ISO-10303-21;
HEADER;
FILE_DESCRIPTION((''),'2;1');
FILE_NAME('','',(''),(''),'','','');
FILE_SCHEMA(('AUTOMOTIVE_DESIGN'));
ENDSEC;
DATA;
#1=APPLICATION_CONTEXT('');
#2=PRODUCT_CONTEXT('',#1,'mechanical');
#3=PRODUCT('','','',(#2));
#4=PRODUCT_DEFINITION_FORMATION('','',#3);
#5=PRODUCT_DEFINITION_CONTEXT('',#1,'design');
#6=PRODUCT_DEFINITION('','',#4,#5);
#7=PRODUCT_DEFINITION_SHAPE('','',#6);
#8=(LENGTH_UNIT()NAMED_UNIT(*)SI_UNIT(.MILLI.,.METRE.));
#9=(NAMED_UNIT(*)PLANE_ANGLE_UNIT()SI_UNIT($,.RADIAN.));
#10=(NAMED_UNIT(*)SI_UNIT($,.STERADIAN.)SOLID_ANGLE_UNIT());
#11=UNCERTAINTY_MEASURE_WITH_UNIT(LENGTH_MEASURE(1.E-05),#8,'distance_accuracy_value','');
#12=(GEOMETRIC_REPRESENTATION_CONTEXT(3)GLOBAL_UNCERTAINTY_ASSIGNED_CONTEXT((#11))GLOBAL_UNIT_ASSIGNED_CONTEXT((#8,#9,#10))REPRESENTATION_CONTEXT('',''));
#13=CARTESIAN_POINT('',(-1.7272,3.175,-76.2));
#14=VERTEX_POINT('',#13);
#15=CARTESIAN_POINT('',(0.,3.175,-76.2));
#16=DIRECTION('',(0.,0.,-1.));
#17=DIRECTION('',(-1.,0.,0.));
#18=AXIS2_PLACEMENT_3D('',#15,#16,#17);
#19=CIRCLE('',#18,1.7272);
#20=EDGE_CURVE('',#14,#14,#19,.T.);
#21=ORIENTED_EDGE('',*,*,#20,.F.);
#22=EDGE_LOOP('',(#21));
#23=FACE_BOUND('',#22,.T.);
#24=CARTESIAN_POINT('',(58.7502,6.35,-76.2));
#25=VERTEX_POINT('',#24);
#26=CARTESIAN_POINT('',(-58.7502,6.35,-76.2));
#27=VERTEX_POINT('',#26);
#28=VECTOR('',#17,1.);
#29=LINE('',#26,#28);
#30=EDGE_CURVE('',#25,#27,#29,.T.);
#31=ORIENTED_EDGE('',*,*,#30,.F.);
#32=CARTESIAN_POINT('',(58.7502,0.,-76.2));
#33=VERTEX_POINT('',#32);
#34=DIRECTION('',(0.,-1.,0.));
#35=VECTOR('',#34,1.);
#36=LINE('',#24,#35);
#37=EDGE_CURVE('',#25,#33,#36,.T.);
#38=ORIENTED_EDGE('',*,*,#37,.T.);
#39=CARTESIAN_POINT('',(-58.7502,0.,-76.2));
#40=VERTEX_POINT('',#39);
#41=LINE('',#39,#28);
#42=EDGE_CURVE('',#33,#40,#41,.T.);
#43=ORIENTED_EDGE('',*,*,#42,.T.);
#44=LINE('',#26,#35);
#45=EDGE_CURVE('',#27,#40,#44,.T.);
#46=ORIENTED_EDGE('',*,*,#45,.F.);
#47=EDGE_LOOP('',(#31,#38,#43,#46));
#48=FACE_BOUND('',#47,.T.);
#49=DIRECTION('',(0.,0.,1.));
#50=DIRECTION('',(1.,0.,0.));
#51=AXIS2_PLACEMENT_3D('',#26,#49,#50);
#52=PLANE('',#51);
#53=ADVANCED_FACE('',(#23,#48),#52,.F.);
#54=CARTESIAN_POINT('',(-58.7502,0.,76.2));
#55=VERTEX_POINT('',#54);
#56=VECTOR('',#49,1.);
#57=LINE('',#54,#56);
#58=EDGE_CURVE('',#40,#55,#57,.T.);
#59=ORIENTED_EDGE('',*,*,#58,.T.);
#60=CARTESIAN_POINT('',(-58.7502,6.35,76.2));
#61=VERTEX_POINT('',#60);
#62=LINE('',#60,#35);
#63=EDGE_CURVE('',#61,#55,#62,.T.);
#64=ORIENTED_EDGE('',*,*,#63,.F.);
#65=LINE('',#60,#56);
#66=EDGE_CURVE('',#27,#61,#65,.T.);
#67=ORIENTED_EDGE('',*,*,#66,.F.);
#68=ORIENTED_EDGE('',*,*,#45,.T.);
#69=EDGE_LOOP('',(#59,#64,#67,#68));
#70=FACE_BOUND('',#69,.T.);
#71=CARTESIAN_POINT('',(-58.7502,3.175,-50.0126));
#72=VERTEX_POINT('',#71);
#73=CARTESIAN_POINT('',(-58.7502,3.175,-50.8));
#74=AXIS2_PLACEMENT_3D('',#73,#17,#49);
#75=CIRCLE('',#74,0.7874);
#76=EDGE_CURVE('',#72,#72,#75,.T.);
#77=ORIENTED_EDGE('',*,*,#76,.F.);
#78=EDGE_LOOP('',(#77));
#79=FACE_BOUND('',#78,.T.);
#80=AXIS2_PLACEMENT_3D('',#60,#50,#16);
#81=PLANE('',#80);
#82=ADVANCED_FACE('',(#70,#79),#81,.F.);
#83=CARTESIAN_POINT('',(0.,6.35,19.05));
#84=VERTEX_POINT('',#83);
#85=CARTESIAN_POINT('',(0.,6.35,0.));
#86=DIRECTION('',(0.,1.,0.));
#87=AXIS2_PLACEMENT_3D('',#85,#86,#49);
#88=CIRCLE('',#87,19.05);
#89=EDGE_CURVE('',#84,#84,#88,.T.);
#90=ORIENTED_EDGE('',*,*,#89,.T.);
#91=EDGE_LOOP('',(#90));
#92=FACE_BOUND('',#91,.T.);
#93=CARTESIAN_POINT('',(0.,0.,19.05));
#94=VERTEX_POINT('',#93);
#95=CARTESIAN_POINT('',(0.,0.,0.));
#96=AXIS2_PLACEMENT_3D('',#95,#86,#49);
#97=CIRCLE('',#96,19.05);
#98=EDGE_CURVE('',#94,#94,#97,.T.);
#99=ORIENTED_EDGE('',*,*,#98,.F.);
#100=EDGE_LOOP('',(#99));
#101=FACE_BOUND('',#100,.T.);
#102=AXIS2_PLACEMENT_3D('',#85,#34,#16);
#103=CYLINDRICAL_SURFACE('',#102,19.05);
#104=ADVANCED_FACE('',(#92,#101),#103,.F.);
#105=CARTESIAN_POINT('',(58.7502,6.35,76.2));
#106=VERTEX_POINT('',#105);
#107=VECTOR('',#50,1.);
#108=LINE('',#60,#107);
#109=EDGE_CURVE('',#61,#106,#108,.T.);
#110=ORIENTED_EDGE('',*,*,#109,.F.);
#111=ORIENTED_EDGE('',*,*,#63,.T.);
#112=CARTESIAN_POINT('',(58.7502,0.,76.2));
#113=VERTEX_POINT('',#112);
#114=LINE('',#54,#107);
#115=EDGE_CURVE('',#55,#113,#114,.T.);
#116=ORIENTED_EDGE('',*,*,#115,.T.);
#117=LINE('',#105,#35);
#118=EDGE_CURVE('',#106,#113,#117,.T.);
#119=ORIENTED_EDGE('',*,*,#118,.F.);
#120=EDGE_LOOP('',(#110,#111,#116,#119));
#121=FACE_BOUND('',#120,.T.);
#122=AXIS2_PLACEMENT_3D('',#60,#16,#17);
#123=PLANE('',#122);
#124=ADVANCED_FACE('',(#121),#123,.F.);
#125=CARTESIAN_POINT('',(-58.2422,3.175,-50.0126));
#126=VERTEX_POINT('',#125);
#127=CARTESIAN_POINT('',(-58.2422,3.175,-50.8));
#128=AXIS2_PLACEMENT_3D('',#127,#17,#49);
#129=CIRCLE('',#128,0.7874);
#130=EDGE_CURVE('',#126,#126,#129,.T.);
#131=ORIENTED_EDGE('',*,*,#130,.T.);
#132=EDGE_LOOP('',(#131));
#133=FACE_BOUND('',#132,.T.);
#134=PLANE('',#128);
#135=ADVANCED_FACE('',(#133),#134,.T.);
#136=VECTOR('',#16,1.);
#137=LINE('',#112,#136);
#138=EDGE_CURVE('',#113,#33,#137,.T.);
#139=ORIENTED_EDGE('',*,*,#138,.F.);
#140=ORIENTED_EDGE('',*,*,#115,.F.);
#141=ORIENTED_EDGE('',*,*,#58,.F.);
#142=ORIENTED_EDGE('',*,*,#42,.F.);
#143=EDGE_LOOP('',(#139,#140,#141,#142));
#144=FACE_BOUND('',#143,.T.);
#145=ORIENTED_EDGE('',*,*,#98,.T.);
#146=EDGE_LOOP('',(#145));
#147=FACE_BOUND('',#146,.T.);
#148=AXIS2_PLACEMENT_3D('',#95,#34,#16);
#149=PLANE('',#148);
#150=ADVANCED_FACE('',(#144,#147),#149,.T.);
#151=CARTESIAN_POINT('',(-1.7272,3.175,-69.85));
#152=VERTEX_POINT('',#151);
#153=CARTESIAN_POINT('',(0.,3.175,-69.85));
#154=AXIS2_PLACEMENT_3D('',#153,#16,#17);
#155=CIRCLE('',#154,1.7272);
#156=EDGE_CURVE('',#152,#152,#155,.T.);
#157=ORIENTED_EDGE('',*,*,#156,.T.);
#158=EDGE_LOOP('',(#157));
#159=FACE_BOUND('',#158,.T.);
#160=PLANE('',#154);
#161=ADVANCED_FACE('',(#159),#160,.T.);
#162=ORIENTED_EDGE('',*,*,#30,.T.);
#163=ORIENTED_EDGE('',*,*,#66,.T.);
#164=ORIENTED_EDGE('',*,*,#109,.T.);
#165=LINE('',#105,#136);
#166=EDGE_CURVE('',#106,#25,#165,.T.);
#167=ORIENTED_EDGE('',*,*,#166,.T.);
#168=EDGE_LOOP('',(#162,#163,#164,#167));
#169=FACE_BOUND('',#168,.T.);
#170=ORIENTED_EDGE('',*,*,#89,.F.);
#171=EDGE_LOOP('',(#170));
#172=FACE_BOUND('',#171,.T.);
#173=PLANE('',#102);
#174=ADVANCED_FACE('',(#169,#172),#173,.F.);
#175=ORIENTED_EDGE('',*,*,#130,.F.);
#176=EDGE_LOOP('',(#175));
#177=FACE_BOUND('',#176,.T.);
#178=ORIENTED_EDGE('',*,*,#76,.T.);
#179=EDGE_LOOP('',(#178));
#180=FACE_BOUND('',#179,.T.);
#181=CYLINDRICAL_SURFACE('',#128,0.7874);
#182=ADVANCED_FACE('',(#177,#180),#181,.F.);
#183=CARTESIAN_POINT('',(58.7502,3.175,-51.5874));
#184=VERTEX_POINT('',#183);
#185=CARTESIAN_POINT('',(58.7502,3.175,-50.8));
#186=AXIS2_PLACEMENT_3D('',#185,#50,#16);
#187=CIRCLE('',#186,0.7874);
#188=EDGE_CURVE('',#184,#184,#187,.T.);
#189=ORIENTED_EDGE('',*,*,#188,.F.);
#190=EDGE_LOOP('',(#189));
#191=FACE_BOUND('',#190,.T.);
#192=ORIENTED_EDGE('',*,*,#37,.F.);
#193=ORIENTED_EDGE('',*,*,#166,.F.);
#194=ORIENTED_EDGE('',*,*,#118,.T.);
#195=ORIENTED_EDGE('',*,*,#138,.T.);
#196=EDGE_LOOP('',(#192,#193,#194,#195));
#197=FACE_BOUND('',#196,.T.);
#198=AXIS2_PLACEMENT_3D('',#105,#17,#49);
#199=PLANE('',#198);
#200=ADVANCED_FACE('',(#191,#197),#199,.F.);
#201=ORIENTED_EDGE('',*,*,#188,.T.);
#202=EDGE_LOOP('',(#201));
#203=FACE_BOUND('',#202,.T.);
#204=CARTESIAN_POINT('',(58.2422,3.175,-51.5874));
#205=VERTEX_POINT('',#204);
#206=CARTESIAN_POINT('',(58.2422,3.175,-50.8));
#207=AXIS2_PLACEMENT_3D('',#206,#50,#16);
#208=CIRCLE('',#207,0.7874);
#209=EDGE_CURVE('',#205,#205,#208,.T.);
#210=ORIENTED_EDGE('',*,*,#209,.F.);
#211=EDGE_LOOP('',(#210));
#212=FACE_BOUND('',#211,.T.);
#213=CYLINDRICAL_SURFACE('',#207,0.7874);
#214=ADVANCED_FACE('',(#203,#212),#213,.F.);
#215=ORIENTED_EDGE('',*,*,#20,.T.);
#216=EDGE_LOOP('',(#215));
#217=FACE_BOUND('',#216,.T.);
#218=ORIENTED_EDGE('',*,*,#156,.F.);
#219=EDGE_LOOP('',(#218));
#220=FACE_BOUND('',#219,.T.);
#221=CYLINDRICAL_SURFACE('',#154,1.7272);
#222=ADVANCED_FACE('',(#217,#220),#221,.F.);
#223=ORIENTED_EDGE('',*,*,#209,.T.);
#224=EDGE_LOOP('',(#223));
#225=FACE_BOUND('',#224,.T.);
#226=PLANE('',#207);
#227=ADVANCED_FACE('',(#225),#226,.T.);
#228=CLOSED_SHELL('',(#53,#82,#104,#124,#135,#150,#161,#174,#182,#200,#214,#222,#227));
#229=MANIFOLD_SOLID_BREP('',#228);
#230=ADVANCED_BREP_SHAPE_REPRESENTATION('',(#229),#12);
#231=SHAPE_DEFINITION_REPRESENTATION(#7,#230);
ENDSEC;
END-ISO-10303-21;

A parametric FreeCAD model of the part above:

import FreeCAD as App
import Part
import Sketcher
from FreeCAD import Vector
Q = App.Units.Quantity


def add_polygon(sketch, points):
    """Adds a closed chain of lines whose ends are joined by coincident constraints."""
    first, n = sketch.GeometryCount, len(points)
    for a, b in zip(points, points[1:] + points[:1]):
        sketch.addGeometry(Part.LineSegment(App.Vector(*a, 0), App.Vector(*b, 0)), False)
    for i in range(n):
        sketch.addConstraint(Sketcher.Constraint("Coincident", first + i, 2, first + (i + 1) % n, 1))

doc = App.newDocument("Part")
body = doc.addObject("PartDesign::Body", "Body")

sketch1 = body.newObject("Sketcher::SketchObject", "Sketch")
sketch1.AttachmentSupport = (doc.getObject("XZ_Plane"), [""])
sketch1.MapMode = "FlatFace"
add_polygon(sketch1, [(-59, -76), (-59, 76), (59, 76), (59, -76)])
sketch1.addGeometry(Part.Circle(Vector(0, 0, 0), Vector(0, 0, 1), 19), False)
sketch1.addConstraint([
    Sketcher.Constraint("Vertical", 0),
    Sketcher.Constraint("Horizontal", 1),
    Sketcher.Constraint("Vertical", 2),
    Sketcher.Constraint("Horizontal", 3),
    Sketcher.Constraint("Coincident", 4, 3, -1, 1),
    Sketcher.Constraint("Symmetric", 0, 2, 2, 2, -1, 1),
    Sketcher.Constraint("Diameter", 4, Q("1.5 in")),
    Sketcher.Constraint("DistanceY", 0, 1, 0, 2, Q("6 in")),
    Sketcher.Constraint("DistanceX", 1, 1, 1, 2, Q("4.626 in")),
])
pad1 = body.newObject("PartDesign::Pad", "Pad")
pad1.Profile = sketch1
pad1.Length = Q("0.25 in")
pad1.Reversed = True

sketch2 = body.newObject("Sketcher::SketchObject", "Sketch001")
sketch2.AttachmentSupport = (doc.getObject("YZ_Plane"), [""])
sketch2.MapMode = "FlatFace"
sketch2.AttachmentOffset = App.Placement(Vector(0, 0, -2.313 * 25.4), App.Rotation())
sketch2.addGeometry(Part.Circle(Vector(3.2, -50.8, 0), Vector(0, 0, 1), 0.8), False)
sketch2.addConstraint([
    Sketcher.Constraint("Diameter", 0, Q("0.062 in")),
    Sketcher.Constraint("DistanceY", 0, 3, -1, 1, Q("2 in")),
    Sketcher.Constraint("DistanceX", -1, 1, 0, 3, Q("0.125 in")),
])
pocket1 = body.newObject("PartDesign::Pocket", "Pocket")
pocket1.Profile = sketch2
pocket1.Length = Q("0.02 in")
pocket1.Reversed = True

sketch3 = body.newObject("Sketcher::SketchObject", "Sketch002")
sketch3.AttachmentSupport = (doc.getObject("YZ_Plane"), [""])
sketch3.MapMode = "FlatFace"
sketch3.AttachmentOffset = App.Placement(Vector(0, 0, 2.313 * 25.4), App.Rotation())
sketch3.addGeometry(Part.Circle(Vector(3.2, -50.8, 0), Vector(0, 0, 1), 0.8), False)
sketch3.addConstraint([
    Sketcher.Constraint("Diameter", 0, Q("0.062 in")),
    Sketcher.Constraint("DistanceY", 0, 3, -1, 1, Q("2 in")),
    Sketcher.Constraint("DistanceX", -1, 1, 0, 3, Q("0.125 in")),
])
pocket2 = body.newObject("PartDesign::Pocket", "Pocket001")
pocket2.Profile = sketch3
pocket2.Length = Q("0.02 in")

sketch4 = body.newObject("Sketcher::SketchObject", "Sketch003")
sketch4.AttachmentSupport = (doc.getObject("XY_Plane"), [""])
sketch4.MapMode = "FlatFace"
sketch4.AttachmentOffset = App.Placement(Vector(0, 0, -3 * 25.4), App.Rotation())
sketch4.addGeometry(Part.Circle(Vector(0, 3.2, 0), Vector(0, 0, 1), 1.7), False)
sketch4.addConstraint([
    Sketcher.Constraint("PointOnObject", 0, 3, -2),
    Sketcher.Constraint("Diameter", 0, Q("0.136 in")),
    Sketcher.Constraint("DistanceY", -1, 1, 0, 3, Q("0.125 in")),
])
pocket3 = body.newObject("PartDesign::Pocket", "Pocket002")
pocket3.Profile = sketch4
pocket3.Length = Q("0.25 in")
pocket3.Reversed = True

doc.recompute()
